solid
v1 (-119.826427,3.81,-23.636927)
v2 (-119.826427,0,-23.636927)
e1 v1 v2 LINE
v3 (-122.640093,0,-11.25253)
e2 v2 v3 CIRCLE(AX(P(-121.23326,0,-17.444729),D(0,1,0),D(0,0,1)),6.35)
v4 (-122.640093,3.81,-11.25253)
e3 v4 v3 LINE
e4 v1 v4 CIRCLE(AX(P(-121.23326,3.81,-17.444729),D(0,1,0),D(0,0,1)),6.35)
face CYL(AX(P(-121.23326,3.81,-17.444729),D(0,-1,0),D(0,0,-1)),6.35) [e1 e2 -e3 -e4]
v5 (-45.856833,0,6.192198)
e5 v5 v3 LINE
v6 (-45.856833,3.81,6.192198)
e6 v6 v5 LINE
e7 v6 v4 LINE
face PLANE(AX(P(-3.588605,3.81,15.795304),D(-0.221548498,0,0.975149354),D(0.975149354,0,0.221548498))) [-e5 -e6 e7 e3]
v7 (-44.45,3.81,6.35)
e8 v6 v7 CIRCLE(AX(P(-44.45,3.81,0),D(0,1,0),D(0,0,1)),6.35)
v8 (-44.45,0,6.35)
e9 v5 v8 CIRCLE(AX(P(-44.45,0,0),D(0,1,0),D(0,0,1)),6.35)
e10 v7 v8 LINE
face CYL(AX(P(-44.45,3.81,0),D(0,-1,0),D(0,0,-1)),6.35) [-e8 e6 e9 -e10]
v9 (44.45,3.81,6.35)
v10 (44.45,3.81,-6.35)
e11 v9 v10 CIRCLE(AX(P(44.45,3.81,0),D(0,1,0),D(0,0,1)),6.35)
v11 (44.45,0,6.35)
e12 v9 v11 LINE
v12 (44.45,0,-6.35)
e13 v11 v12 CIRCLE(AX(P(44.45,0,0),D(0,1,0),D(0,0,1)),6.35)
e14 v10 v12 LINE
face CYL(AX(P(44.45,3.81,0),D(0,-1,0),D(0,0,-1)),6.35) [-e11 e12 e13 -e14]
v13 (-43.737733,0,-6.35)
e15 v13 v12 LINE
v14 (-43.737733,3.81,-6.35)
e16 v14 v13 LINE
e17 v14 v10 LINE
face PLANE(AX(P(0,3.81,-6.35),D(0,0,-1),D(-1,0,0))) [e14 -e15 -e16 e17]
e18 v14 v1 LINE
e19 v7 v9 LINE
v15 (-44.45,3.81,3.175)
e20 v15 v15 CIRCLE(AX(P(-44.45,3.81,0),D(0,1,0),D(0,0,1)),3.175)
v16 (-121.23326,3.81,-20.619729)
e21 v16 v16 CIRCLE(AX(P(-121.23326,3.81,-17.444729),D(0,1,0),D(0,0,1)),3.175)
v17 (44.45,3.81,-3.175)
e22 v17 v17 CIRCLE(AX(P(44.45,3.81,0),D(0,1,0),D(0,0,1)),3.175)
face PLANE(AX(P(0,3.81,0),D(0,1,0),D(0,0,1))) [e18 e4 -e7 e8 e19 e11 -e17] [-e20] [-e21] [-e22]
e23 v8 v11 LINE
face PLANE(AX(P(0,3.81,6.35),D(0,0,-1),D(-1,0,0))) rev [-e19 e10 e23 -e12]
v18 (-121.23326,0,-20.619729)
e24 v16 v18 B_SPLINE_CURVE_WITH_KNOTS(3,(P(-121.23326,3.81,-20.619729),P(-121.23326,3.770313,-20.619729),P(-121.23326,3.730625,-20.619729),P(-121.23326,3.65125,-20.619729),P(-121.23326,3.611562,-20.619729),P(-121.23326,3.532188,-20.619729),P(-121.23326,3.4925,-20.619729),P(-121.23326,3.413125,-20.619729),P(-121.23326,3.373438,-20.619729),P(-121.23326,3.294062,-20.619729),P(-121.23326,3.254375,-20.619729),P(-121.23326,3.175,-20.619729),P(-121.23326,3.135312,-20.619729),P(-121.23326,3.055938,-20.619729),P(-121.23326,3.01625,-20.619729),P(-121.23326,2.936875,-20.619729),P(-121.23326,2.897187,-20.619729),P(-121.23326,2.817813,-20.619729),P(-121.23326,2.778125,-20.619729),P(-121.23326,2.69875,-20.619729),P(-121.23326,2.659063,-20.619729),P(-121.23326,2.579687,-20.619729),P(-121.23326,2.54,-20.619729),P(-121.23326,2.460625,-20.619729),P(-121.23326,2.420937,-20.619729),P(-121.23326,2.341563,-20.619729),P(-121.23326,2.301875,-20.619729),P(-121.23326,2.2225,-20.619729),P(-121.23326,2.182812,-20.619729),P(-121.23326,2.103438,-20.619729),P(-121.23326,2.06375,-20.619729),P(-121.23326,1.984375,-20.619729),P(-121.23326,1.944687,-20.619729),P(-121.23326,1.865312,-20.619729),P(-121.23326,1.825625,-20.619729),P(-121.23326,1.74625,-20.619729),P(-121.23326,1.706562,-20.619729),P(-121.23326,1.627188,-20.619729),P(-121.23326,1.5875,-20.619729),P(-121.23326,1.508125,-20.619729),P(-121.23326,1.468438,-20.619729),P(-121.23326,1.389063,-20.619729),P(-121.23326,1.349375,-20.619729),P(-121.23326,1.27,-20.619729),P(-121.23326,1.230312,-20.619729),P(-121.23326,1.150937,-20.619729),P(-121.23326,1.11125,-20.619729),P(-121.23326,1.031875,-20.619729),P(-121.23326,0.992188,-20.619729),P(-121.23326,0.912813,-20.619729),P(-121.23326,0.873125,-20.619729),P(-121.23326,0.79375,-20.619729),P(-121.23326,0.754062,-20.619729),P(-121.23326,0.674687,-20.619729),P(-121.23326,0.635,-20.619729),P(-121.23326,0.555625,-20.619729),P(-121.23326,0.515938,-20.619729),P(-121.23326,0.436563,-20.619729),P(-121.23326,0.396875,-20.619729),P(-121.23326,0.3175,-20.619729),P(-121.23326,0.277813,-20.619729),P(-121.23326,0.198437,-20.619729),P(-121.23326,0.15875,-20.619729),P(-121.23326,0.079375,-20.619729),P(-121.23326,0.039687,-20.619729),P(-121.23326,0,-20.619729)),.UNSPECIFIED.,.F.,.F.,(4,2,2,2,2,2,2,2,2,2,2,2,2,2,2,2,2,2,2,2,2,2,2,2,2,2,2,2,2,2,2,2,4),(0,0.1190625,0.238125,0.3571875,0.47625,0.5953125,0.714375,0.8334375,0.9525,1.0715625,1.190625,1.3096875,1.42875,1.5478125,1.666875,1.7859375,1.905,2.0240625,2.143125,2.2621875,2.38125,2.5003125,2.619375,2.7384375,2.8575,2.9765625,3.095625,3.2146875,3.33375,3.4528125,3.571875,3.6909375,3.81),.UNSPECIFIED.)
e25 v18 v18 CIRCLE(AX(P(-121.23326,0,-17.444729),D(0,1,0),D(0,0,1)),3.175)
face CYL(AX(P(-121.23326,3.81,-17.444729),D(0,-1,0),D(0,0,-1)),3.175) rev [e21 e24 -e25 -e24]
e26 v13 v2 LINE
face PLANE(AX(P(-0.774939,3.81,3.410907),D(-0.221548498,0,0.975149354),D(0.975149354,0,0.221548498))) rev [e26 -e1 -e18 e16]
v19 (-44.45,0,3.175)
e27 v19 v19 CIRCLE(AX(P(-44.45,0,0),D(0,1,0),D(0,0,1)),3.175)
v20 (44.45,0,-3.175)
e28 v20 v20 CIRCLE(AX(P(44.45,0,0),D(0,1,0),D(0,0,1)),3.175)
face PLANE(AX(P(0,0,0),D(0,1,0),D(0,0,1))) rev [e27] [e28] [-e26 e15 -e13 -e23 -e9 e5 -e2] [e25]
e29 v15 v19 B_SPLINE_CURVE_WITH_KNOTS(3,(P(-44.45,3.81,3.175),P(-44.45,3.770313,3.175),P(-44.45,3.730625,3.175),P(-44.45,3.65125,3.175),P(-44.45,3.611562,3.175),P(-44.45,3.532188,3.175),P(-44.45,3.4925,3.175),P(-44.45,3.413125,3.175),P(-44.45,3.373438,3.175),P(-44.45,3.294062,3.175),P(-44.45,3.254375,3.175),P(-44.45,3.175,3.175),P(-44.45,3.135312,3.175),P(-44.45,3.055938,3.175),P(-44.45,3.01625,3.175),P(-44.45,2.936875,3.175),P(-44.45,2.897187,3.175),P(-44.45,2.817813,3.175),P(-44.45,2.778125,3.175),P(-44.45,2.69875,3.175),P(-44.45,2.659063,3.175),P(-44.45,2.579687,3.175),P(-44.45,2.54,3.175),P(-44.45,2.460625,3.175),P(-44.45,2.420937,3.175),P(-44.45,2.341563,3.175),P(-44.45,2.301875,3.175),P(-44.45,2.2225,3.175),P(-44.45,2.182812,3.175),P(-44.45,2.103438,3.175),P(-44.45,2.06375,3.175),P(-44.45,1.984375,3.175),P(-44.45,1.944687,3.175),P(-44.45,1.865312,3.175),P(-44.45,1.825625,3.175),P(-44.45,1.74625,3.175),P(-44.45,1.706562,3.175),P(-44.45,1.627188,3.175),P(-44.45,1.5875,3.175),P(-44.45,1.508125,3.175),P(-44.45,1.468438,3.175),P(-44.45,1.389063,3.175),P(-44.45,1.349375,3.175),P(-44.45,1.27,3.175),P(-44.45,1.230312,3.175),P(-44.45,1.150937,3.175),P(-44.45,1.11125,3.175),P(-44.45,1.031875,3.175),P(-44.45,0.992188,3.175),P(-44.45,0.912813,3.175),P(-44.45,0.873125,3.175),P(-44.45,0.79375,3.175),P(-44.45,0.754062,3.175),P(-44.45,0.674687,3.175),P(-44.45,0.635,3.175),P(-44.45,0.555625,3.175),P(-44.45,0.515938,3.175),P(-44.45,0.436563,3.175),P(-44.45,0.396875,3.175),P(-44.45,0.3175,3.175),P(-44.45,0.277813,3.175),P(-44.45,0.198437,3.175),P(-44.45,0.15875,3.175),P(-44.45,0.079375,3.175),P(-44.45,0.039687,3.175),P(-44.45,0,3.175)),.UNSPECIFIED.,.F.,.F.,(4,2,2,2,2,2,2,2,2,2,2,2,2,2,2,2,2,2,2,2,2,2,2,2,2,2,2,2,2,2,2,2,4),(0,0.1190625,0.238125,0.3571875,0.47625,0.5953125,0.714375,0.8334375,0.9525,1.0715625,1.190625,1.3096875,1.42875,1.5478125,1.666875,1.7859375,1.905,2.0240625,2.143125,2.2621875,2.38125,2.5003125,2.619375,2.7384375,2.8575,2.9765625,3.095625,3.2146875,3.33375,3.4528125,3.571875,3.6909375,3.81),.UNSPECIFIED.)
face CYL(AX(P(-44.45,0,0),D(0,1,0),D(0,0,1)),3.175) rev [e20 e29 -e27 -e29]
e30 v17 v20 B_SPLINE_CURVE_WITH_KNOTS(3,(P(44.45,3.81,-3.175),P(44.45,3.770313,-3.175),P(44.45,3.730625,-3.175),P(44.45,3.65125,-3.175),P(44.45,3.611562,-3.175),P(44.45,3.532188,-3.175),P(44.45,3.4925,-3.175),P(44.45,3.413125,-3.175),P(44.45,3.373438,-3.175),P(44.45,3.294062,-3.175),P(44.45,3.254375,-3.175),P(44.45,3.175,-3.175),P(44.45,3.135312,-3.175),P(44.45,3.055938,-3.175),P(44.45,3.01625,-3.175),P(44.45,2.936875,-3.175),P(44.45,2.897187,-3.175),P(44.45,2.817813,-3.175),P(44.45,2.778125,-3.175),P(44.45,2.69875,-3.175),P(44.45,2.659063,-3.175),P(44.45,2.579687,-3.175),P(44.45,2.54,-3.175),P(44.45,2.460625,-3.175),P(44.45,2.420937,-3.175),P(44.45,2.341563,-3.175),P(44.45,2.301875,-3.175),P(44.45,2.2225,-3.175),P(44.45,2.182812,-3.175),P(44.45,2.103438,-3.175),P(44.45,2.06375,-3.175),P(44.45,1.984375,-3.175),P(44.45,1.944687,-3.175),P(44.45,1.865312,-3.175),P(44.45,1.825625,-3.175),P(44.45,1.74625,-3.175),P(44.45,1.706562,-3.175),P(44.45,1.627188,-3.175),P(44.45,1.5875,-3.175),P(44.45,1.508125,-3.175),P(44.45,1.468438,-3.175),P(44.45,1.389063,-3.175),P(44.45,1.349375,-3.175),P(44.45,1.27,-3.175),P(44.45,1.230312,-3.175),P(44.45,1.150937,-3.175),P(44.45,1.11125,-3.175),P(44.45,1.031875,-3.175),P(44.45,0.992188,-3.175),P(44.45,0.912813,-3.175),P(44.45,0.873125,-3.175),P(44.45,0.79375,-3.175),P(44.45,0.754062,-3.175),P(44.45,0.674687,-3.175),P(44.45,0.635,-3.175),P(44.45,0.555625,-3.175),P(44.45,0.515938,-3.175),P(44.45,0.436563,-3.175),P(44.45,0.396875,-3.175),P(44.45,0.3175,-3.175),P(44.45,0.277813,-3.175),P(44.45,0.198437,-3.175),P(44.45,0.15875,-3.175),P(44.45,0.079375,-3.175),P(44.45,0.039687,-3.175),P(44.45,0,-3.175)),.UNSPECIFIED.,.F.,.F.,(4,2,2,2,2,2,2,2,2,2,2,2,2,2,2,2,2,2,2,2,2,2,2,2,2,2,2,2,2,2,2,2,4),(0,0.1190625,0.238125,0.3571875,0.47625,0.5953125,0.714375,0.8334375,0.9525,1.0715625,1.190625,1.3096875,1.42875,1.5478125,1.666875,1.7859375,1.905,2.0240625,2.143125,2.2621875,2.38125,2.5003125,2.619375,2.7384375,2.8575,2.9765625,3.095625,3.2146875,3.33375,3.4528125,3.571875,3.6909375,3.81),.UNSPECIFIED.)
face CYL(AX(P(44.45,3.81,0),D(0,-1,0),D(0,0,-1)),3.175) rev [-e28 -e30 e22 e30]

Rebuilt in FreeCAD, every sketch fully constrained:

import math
import FreeCAD as App
import Part
import Sketcher
Q = App.Units.Quantity

doc = App.newDocument("Part")
body = doc.addObject("PartDesign::Body", "Body")

sketch1 = doc.addObject("Sketcher::SketchObject", "Sketch")
body.addObject(sketch1)
sketch1.AttachmentSupport = (doc.XZ_Plane, [""])
sketch1.MapMode = "FlatFace"
sketch1.addGeometry(Part.LineSegment(App.Vector(-122.6, -11.3, 0), App.Vector(-45.9, 6.2, 0)), False)
sketch1.addGeometry(Part.ArcOfCircle(Part.Circle(App.Vector(-44.5, 0, 0), App.Vector(0, 0, 1), 6.3), math.radians(-77), math.radians(103)), False)
sketch1.addGeometry(Part.LineSegment(App.Vector(-43, -6.2, 0), App.Vector(-119.8, -23.6, 0)), False)
sketch1.addGeometry(Part.ArcOfCircle(Part.Circle(App.Vector(-121.2, -17.4, 0), App.Vector(0, 0, 1), 6.3), math.radians(103), math.radians(283)), False)
sketch1.addGeometry(Part.Circle(App.Vector(-121.2, -17.4, 0), App.Vector(0, 0, 1), 3.2), False)
sketch1.addConstraint(Sketcher.Constraint("Tangent", 0, 2, 1, 2))
sketch1.addConstraint(Sketcher.Constraint("Tangent", 1, 1, 2, 1))
sketch1.addConstraint(Sketcher.Constraint("Tangent", 2, 2, 3, 2))
sketch1.addConstraint(Sketcher.Constraint("Tangent", 3, 1, 0, 1))
sketch1.addConstraint(Sketcher.Constraint("Coincident", 4, 3, 3, 3))
sketch1.addConstraint(Sketcher.Constraint("Equal", 1, 3))
sketch1.addConstraint(Sketcher.Constraint("PointOnObject", 1, 3, -1))
sketch1.addConstraint(Sketcher.Constraint("Diameter", 4, Q("0.25 in")))
sketch1.addConstraint(Sketcher.Constraint("Radius", 1, Q("0.25 in")))
sketch1.addConstraint(Sketcher.Constraint("Distance", 0, Q("3.1 in")))
sketch1.addConstraint(Sketcher.Constraint("Angle", 0, Q("12.8 deg")))
sketch1.addConstraint(Sketcher.Constraint("DistanceX", 1, 3, -1, 1, Q("1.75 in")))
pad1 = doc.addObject("PartDesign::Pad", "Pad")
body.addObject(pad1)
pad1.Profile = sketch1
pad1.Length = Q("0.15 in")
pad1.Reversed = True

sketch2 = doc.addObject("Sketcher::SketchObject", "Sketch001")
body.addObject(sketch2)
sketch2.AttachmentSupport = (doc.XZ_Plane, [""])
sketch2.MapMode = "FlatFace"
sketch2.addGeometry(Part.LineSegment(App.Vector(44.5, -6.3, 0), App.Vector(-44.5, -6.3, 0)), False)
sketch2.addGeometry(Part.ArcOfCircle(Part.Circle(App.Vector(-44.5, 0, 0), App.Vector(0, 0, 1), 6.3), math.radians(90), math.radians(270)), False)
sketch2.addGeometry(Part.LineSegment(App.Vector(-44.5, 6.3, 0), App.Vector(44.5, 6.3, 0)), False)
sketch2.addGeometry(Part.ArcOfCircle(Part.Circle(App.Vector(44.5, 0, 0), App.Vector(0, 0, 1), 6.3), math.radians(-90), math.radians(90)), False)
sketch2.addGeometry(Part.Circle(App.Vector(44.5, 0, 0), App.Vector(0, 0, 1), 3.2), False)
sketch2.addConstraint(Sketcher.Constraint("Tangent", 0, 2, 1, 2))
sketch2.addConstraint(Sketcher.Constraint("Tangent", 1, 1, 2, 1))
sketch2.addConstraint(Sketcher.Constraint("Tangent", 2, 2, 3, 2))
sketch2.addConstraint(Sketcher.Constraint("Tangent", 3, 1, 0, 1))
sketch2.addConstraint(Sketcher.Constraint("Horizontal", 0))
sketch2.addConstraint(Sketcher.Constraint("Horizontal", 2))
sketch2.addConstraint(Sketcher.Constraint("Coincident", 4, 3, 3, 3))
sketch2.addConstraint(Sketcher.Constraint("Symmetric", 1, 3, 3, 3, -1, 1))
sketch2.addConstraint(Sketcher.Constraint("Diameter", 4, Q("0.25 in")))
sketch2.addConstraint(Sketcher.Constraint("Radius", 1, Q("0.25 in")))
sketch2.addConstraint(Sketcher.Constraint("DistanceX", 0, 2, 0, 1, Q("3.5 in")))
pad2 = doc.addObject("PartDesign::Pad", "Pad001")
body.addObject(pad2)
pad2.Profile = sketch2
pad2.Length = Q("0.15 in")
pad2.Reversed = True

sketch3 = doc.addObject("Sketcher::SketchObject", "Sketch002")
body.addObject(sketch3)
sketch3.AttachmentSupport = (doc.XZ_Plane, [""])
sketch3.MapMode = "FlatFace"
sketch3.AttachmentOffset = App.Placement(App.Vector(0, 0, -0.15 * 25.4), App.Rotation())
sketch3.addGeometry(Part.Circle(App.Vector(-44.5, 0, 0), App.Vector(0, 0, 1), 3.2), False)
sketch3.addConstraint(Sketcher.Constraint("PointOnObject", 0, 3, -1))
sketch3.addConstraint(Sketcher.Constraint("Diameter", 0, Q("0.25 in")))
sketch3.addConstraint(Sketcher.Constraint("DistanceX", 0, 3, -1, 1, Q("1.75 in")))
pocket1 = doc.addObject("PartDesign::Pocket", "Pocket")
body.addObject(pocket1)
pocket1.Profile = sketch3
pocket1.Type = "ThroughAll"
pocket1.Midplane = True

doc.recompute()
